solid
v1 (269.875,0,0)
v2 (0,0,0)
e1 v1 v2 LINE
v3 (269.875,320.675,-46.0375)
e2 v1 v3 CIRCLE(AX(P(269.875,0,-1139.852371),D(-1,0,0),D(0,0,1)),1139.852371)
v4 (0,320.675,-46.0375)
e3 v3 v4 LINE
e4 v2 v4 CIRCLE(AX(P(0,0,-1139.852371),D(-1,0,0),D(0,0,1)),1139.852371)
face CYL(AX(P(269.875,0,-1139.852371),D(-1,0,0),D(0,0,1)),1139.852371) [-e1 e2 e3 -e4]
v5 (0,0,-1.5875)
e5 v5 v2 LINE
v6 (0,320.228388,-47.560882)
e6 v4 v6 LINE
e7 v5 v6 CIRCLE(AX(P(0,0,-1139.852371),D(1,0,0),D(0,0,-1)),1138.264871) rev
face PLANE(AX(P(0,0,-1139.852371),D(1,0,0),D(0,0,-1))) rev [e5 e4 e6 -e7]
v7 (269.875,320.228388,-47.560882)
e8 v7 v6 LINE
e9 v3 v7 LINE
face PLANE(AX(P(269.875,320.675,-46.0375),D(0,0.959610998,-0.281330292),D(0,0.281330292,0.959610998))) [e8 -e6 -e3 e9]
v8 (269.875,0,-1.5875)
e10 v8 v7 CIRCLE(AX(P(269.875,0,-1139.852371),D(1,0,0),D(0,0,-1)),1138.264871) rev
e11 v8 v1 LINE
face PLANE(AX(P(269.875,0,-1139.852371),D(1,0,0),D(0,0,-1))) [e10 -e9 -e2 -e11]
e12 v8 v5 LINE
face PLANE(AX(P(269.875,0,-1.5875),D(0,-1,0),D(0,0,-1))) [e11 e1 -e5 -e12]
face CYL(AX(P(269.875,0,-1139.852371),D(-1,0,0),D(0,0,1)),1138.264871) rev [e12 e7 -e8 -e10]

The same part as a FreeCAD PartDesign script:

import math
import FreeCAD as App
import Part
import Sketcher
from FreeCAD import Vector
Q = App.Units.Quantity

doc = App.newDocument("Part")
body = doc.addObject("PartDesign::Body", "Body")

sketch1 = body.newObject("Sketcher::SketchObject", "Sketch")
sketch1.AttachmentSupport = (doc.getObject("YZ_Plane"), [""])
sketch1.MapMode = "FlatFace"
sketch1.addGeometry([
    Part.ArcOfCircle(Part.Circle(Vector(0, -1139.9, 0), Vector(0, 0, 1), 1139.9), math.radians(73.66), math.radians(90)),
    Part.LineSegment(Vector(0, 0, 0), Vector(0, -1.6, 0)),
    Part.ArcOfCircle(Part.Circle(Vector(0, -1139.9, 0), Vector(0, 0, 1), 1138.3), math.radians(73.66), math.radians(90)),
    Part.LineSegment(Vector(320.2, -47.6, 0), Vector(320.7, -46, 0)),
], False)
sketch1.addConstraint([
    Sketcher.Constraint("Coincident", 0, 2, 1, 1),
    Sketcher.Constraint("Coincident", 1, 2, 2, 2),
    Sketcher.Constraint("Coincident", 2, 1, 3, 1),
    Sketcher.Constraint("Coincident", 3, 2, 0, 1),
    Sketcher.Constraint("Vertical", 1),
    Sketcher.Constraint("Coincident", 2, 3, 0, 3),
    Sketcher.Constraint("PointOnObject", 0, 3, -2),
    Sketcher.Constraint("PointOnObject", 1, 2, -2),
    Sketcher.Constraint("DistanceY", 1, 2, 1, 1, Q("0.0625 in")),
    Sketcher.Constraint("DistanceY", 3, 2, 1, 2, Q("1.75 in")),
    Sketcher.Constraint("DistanceY", 1, 2, -1, 1, Q("0.0625 in")),
    Sketcher.Constraint("DistanceX", -1, 1, 3, 2, Q("12.625 in")),
    Sketcher.Constraint("Angle", 3, Q("73.660383 deg")),
])
pad1 = body.newObject("PartDesign::Pad", "Pad")
pad1.Profile = sketch1
pad1.Length = Q("10.625 in")

doc.recompute()
